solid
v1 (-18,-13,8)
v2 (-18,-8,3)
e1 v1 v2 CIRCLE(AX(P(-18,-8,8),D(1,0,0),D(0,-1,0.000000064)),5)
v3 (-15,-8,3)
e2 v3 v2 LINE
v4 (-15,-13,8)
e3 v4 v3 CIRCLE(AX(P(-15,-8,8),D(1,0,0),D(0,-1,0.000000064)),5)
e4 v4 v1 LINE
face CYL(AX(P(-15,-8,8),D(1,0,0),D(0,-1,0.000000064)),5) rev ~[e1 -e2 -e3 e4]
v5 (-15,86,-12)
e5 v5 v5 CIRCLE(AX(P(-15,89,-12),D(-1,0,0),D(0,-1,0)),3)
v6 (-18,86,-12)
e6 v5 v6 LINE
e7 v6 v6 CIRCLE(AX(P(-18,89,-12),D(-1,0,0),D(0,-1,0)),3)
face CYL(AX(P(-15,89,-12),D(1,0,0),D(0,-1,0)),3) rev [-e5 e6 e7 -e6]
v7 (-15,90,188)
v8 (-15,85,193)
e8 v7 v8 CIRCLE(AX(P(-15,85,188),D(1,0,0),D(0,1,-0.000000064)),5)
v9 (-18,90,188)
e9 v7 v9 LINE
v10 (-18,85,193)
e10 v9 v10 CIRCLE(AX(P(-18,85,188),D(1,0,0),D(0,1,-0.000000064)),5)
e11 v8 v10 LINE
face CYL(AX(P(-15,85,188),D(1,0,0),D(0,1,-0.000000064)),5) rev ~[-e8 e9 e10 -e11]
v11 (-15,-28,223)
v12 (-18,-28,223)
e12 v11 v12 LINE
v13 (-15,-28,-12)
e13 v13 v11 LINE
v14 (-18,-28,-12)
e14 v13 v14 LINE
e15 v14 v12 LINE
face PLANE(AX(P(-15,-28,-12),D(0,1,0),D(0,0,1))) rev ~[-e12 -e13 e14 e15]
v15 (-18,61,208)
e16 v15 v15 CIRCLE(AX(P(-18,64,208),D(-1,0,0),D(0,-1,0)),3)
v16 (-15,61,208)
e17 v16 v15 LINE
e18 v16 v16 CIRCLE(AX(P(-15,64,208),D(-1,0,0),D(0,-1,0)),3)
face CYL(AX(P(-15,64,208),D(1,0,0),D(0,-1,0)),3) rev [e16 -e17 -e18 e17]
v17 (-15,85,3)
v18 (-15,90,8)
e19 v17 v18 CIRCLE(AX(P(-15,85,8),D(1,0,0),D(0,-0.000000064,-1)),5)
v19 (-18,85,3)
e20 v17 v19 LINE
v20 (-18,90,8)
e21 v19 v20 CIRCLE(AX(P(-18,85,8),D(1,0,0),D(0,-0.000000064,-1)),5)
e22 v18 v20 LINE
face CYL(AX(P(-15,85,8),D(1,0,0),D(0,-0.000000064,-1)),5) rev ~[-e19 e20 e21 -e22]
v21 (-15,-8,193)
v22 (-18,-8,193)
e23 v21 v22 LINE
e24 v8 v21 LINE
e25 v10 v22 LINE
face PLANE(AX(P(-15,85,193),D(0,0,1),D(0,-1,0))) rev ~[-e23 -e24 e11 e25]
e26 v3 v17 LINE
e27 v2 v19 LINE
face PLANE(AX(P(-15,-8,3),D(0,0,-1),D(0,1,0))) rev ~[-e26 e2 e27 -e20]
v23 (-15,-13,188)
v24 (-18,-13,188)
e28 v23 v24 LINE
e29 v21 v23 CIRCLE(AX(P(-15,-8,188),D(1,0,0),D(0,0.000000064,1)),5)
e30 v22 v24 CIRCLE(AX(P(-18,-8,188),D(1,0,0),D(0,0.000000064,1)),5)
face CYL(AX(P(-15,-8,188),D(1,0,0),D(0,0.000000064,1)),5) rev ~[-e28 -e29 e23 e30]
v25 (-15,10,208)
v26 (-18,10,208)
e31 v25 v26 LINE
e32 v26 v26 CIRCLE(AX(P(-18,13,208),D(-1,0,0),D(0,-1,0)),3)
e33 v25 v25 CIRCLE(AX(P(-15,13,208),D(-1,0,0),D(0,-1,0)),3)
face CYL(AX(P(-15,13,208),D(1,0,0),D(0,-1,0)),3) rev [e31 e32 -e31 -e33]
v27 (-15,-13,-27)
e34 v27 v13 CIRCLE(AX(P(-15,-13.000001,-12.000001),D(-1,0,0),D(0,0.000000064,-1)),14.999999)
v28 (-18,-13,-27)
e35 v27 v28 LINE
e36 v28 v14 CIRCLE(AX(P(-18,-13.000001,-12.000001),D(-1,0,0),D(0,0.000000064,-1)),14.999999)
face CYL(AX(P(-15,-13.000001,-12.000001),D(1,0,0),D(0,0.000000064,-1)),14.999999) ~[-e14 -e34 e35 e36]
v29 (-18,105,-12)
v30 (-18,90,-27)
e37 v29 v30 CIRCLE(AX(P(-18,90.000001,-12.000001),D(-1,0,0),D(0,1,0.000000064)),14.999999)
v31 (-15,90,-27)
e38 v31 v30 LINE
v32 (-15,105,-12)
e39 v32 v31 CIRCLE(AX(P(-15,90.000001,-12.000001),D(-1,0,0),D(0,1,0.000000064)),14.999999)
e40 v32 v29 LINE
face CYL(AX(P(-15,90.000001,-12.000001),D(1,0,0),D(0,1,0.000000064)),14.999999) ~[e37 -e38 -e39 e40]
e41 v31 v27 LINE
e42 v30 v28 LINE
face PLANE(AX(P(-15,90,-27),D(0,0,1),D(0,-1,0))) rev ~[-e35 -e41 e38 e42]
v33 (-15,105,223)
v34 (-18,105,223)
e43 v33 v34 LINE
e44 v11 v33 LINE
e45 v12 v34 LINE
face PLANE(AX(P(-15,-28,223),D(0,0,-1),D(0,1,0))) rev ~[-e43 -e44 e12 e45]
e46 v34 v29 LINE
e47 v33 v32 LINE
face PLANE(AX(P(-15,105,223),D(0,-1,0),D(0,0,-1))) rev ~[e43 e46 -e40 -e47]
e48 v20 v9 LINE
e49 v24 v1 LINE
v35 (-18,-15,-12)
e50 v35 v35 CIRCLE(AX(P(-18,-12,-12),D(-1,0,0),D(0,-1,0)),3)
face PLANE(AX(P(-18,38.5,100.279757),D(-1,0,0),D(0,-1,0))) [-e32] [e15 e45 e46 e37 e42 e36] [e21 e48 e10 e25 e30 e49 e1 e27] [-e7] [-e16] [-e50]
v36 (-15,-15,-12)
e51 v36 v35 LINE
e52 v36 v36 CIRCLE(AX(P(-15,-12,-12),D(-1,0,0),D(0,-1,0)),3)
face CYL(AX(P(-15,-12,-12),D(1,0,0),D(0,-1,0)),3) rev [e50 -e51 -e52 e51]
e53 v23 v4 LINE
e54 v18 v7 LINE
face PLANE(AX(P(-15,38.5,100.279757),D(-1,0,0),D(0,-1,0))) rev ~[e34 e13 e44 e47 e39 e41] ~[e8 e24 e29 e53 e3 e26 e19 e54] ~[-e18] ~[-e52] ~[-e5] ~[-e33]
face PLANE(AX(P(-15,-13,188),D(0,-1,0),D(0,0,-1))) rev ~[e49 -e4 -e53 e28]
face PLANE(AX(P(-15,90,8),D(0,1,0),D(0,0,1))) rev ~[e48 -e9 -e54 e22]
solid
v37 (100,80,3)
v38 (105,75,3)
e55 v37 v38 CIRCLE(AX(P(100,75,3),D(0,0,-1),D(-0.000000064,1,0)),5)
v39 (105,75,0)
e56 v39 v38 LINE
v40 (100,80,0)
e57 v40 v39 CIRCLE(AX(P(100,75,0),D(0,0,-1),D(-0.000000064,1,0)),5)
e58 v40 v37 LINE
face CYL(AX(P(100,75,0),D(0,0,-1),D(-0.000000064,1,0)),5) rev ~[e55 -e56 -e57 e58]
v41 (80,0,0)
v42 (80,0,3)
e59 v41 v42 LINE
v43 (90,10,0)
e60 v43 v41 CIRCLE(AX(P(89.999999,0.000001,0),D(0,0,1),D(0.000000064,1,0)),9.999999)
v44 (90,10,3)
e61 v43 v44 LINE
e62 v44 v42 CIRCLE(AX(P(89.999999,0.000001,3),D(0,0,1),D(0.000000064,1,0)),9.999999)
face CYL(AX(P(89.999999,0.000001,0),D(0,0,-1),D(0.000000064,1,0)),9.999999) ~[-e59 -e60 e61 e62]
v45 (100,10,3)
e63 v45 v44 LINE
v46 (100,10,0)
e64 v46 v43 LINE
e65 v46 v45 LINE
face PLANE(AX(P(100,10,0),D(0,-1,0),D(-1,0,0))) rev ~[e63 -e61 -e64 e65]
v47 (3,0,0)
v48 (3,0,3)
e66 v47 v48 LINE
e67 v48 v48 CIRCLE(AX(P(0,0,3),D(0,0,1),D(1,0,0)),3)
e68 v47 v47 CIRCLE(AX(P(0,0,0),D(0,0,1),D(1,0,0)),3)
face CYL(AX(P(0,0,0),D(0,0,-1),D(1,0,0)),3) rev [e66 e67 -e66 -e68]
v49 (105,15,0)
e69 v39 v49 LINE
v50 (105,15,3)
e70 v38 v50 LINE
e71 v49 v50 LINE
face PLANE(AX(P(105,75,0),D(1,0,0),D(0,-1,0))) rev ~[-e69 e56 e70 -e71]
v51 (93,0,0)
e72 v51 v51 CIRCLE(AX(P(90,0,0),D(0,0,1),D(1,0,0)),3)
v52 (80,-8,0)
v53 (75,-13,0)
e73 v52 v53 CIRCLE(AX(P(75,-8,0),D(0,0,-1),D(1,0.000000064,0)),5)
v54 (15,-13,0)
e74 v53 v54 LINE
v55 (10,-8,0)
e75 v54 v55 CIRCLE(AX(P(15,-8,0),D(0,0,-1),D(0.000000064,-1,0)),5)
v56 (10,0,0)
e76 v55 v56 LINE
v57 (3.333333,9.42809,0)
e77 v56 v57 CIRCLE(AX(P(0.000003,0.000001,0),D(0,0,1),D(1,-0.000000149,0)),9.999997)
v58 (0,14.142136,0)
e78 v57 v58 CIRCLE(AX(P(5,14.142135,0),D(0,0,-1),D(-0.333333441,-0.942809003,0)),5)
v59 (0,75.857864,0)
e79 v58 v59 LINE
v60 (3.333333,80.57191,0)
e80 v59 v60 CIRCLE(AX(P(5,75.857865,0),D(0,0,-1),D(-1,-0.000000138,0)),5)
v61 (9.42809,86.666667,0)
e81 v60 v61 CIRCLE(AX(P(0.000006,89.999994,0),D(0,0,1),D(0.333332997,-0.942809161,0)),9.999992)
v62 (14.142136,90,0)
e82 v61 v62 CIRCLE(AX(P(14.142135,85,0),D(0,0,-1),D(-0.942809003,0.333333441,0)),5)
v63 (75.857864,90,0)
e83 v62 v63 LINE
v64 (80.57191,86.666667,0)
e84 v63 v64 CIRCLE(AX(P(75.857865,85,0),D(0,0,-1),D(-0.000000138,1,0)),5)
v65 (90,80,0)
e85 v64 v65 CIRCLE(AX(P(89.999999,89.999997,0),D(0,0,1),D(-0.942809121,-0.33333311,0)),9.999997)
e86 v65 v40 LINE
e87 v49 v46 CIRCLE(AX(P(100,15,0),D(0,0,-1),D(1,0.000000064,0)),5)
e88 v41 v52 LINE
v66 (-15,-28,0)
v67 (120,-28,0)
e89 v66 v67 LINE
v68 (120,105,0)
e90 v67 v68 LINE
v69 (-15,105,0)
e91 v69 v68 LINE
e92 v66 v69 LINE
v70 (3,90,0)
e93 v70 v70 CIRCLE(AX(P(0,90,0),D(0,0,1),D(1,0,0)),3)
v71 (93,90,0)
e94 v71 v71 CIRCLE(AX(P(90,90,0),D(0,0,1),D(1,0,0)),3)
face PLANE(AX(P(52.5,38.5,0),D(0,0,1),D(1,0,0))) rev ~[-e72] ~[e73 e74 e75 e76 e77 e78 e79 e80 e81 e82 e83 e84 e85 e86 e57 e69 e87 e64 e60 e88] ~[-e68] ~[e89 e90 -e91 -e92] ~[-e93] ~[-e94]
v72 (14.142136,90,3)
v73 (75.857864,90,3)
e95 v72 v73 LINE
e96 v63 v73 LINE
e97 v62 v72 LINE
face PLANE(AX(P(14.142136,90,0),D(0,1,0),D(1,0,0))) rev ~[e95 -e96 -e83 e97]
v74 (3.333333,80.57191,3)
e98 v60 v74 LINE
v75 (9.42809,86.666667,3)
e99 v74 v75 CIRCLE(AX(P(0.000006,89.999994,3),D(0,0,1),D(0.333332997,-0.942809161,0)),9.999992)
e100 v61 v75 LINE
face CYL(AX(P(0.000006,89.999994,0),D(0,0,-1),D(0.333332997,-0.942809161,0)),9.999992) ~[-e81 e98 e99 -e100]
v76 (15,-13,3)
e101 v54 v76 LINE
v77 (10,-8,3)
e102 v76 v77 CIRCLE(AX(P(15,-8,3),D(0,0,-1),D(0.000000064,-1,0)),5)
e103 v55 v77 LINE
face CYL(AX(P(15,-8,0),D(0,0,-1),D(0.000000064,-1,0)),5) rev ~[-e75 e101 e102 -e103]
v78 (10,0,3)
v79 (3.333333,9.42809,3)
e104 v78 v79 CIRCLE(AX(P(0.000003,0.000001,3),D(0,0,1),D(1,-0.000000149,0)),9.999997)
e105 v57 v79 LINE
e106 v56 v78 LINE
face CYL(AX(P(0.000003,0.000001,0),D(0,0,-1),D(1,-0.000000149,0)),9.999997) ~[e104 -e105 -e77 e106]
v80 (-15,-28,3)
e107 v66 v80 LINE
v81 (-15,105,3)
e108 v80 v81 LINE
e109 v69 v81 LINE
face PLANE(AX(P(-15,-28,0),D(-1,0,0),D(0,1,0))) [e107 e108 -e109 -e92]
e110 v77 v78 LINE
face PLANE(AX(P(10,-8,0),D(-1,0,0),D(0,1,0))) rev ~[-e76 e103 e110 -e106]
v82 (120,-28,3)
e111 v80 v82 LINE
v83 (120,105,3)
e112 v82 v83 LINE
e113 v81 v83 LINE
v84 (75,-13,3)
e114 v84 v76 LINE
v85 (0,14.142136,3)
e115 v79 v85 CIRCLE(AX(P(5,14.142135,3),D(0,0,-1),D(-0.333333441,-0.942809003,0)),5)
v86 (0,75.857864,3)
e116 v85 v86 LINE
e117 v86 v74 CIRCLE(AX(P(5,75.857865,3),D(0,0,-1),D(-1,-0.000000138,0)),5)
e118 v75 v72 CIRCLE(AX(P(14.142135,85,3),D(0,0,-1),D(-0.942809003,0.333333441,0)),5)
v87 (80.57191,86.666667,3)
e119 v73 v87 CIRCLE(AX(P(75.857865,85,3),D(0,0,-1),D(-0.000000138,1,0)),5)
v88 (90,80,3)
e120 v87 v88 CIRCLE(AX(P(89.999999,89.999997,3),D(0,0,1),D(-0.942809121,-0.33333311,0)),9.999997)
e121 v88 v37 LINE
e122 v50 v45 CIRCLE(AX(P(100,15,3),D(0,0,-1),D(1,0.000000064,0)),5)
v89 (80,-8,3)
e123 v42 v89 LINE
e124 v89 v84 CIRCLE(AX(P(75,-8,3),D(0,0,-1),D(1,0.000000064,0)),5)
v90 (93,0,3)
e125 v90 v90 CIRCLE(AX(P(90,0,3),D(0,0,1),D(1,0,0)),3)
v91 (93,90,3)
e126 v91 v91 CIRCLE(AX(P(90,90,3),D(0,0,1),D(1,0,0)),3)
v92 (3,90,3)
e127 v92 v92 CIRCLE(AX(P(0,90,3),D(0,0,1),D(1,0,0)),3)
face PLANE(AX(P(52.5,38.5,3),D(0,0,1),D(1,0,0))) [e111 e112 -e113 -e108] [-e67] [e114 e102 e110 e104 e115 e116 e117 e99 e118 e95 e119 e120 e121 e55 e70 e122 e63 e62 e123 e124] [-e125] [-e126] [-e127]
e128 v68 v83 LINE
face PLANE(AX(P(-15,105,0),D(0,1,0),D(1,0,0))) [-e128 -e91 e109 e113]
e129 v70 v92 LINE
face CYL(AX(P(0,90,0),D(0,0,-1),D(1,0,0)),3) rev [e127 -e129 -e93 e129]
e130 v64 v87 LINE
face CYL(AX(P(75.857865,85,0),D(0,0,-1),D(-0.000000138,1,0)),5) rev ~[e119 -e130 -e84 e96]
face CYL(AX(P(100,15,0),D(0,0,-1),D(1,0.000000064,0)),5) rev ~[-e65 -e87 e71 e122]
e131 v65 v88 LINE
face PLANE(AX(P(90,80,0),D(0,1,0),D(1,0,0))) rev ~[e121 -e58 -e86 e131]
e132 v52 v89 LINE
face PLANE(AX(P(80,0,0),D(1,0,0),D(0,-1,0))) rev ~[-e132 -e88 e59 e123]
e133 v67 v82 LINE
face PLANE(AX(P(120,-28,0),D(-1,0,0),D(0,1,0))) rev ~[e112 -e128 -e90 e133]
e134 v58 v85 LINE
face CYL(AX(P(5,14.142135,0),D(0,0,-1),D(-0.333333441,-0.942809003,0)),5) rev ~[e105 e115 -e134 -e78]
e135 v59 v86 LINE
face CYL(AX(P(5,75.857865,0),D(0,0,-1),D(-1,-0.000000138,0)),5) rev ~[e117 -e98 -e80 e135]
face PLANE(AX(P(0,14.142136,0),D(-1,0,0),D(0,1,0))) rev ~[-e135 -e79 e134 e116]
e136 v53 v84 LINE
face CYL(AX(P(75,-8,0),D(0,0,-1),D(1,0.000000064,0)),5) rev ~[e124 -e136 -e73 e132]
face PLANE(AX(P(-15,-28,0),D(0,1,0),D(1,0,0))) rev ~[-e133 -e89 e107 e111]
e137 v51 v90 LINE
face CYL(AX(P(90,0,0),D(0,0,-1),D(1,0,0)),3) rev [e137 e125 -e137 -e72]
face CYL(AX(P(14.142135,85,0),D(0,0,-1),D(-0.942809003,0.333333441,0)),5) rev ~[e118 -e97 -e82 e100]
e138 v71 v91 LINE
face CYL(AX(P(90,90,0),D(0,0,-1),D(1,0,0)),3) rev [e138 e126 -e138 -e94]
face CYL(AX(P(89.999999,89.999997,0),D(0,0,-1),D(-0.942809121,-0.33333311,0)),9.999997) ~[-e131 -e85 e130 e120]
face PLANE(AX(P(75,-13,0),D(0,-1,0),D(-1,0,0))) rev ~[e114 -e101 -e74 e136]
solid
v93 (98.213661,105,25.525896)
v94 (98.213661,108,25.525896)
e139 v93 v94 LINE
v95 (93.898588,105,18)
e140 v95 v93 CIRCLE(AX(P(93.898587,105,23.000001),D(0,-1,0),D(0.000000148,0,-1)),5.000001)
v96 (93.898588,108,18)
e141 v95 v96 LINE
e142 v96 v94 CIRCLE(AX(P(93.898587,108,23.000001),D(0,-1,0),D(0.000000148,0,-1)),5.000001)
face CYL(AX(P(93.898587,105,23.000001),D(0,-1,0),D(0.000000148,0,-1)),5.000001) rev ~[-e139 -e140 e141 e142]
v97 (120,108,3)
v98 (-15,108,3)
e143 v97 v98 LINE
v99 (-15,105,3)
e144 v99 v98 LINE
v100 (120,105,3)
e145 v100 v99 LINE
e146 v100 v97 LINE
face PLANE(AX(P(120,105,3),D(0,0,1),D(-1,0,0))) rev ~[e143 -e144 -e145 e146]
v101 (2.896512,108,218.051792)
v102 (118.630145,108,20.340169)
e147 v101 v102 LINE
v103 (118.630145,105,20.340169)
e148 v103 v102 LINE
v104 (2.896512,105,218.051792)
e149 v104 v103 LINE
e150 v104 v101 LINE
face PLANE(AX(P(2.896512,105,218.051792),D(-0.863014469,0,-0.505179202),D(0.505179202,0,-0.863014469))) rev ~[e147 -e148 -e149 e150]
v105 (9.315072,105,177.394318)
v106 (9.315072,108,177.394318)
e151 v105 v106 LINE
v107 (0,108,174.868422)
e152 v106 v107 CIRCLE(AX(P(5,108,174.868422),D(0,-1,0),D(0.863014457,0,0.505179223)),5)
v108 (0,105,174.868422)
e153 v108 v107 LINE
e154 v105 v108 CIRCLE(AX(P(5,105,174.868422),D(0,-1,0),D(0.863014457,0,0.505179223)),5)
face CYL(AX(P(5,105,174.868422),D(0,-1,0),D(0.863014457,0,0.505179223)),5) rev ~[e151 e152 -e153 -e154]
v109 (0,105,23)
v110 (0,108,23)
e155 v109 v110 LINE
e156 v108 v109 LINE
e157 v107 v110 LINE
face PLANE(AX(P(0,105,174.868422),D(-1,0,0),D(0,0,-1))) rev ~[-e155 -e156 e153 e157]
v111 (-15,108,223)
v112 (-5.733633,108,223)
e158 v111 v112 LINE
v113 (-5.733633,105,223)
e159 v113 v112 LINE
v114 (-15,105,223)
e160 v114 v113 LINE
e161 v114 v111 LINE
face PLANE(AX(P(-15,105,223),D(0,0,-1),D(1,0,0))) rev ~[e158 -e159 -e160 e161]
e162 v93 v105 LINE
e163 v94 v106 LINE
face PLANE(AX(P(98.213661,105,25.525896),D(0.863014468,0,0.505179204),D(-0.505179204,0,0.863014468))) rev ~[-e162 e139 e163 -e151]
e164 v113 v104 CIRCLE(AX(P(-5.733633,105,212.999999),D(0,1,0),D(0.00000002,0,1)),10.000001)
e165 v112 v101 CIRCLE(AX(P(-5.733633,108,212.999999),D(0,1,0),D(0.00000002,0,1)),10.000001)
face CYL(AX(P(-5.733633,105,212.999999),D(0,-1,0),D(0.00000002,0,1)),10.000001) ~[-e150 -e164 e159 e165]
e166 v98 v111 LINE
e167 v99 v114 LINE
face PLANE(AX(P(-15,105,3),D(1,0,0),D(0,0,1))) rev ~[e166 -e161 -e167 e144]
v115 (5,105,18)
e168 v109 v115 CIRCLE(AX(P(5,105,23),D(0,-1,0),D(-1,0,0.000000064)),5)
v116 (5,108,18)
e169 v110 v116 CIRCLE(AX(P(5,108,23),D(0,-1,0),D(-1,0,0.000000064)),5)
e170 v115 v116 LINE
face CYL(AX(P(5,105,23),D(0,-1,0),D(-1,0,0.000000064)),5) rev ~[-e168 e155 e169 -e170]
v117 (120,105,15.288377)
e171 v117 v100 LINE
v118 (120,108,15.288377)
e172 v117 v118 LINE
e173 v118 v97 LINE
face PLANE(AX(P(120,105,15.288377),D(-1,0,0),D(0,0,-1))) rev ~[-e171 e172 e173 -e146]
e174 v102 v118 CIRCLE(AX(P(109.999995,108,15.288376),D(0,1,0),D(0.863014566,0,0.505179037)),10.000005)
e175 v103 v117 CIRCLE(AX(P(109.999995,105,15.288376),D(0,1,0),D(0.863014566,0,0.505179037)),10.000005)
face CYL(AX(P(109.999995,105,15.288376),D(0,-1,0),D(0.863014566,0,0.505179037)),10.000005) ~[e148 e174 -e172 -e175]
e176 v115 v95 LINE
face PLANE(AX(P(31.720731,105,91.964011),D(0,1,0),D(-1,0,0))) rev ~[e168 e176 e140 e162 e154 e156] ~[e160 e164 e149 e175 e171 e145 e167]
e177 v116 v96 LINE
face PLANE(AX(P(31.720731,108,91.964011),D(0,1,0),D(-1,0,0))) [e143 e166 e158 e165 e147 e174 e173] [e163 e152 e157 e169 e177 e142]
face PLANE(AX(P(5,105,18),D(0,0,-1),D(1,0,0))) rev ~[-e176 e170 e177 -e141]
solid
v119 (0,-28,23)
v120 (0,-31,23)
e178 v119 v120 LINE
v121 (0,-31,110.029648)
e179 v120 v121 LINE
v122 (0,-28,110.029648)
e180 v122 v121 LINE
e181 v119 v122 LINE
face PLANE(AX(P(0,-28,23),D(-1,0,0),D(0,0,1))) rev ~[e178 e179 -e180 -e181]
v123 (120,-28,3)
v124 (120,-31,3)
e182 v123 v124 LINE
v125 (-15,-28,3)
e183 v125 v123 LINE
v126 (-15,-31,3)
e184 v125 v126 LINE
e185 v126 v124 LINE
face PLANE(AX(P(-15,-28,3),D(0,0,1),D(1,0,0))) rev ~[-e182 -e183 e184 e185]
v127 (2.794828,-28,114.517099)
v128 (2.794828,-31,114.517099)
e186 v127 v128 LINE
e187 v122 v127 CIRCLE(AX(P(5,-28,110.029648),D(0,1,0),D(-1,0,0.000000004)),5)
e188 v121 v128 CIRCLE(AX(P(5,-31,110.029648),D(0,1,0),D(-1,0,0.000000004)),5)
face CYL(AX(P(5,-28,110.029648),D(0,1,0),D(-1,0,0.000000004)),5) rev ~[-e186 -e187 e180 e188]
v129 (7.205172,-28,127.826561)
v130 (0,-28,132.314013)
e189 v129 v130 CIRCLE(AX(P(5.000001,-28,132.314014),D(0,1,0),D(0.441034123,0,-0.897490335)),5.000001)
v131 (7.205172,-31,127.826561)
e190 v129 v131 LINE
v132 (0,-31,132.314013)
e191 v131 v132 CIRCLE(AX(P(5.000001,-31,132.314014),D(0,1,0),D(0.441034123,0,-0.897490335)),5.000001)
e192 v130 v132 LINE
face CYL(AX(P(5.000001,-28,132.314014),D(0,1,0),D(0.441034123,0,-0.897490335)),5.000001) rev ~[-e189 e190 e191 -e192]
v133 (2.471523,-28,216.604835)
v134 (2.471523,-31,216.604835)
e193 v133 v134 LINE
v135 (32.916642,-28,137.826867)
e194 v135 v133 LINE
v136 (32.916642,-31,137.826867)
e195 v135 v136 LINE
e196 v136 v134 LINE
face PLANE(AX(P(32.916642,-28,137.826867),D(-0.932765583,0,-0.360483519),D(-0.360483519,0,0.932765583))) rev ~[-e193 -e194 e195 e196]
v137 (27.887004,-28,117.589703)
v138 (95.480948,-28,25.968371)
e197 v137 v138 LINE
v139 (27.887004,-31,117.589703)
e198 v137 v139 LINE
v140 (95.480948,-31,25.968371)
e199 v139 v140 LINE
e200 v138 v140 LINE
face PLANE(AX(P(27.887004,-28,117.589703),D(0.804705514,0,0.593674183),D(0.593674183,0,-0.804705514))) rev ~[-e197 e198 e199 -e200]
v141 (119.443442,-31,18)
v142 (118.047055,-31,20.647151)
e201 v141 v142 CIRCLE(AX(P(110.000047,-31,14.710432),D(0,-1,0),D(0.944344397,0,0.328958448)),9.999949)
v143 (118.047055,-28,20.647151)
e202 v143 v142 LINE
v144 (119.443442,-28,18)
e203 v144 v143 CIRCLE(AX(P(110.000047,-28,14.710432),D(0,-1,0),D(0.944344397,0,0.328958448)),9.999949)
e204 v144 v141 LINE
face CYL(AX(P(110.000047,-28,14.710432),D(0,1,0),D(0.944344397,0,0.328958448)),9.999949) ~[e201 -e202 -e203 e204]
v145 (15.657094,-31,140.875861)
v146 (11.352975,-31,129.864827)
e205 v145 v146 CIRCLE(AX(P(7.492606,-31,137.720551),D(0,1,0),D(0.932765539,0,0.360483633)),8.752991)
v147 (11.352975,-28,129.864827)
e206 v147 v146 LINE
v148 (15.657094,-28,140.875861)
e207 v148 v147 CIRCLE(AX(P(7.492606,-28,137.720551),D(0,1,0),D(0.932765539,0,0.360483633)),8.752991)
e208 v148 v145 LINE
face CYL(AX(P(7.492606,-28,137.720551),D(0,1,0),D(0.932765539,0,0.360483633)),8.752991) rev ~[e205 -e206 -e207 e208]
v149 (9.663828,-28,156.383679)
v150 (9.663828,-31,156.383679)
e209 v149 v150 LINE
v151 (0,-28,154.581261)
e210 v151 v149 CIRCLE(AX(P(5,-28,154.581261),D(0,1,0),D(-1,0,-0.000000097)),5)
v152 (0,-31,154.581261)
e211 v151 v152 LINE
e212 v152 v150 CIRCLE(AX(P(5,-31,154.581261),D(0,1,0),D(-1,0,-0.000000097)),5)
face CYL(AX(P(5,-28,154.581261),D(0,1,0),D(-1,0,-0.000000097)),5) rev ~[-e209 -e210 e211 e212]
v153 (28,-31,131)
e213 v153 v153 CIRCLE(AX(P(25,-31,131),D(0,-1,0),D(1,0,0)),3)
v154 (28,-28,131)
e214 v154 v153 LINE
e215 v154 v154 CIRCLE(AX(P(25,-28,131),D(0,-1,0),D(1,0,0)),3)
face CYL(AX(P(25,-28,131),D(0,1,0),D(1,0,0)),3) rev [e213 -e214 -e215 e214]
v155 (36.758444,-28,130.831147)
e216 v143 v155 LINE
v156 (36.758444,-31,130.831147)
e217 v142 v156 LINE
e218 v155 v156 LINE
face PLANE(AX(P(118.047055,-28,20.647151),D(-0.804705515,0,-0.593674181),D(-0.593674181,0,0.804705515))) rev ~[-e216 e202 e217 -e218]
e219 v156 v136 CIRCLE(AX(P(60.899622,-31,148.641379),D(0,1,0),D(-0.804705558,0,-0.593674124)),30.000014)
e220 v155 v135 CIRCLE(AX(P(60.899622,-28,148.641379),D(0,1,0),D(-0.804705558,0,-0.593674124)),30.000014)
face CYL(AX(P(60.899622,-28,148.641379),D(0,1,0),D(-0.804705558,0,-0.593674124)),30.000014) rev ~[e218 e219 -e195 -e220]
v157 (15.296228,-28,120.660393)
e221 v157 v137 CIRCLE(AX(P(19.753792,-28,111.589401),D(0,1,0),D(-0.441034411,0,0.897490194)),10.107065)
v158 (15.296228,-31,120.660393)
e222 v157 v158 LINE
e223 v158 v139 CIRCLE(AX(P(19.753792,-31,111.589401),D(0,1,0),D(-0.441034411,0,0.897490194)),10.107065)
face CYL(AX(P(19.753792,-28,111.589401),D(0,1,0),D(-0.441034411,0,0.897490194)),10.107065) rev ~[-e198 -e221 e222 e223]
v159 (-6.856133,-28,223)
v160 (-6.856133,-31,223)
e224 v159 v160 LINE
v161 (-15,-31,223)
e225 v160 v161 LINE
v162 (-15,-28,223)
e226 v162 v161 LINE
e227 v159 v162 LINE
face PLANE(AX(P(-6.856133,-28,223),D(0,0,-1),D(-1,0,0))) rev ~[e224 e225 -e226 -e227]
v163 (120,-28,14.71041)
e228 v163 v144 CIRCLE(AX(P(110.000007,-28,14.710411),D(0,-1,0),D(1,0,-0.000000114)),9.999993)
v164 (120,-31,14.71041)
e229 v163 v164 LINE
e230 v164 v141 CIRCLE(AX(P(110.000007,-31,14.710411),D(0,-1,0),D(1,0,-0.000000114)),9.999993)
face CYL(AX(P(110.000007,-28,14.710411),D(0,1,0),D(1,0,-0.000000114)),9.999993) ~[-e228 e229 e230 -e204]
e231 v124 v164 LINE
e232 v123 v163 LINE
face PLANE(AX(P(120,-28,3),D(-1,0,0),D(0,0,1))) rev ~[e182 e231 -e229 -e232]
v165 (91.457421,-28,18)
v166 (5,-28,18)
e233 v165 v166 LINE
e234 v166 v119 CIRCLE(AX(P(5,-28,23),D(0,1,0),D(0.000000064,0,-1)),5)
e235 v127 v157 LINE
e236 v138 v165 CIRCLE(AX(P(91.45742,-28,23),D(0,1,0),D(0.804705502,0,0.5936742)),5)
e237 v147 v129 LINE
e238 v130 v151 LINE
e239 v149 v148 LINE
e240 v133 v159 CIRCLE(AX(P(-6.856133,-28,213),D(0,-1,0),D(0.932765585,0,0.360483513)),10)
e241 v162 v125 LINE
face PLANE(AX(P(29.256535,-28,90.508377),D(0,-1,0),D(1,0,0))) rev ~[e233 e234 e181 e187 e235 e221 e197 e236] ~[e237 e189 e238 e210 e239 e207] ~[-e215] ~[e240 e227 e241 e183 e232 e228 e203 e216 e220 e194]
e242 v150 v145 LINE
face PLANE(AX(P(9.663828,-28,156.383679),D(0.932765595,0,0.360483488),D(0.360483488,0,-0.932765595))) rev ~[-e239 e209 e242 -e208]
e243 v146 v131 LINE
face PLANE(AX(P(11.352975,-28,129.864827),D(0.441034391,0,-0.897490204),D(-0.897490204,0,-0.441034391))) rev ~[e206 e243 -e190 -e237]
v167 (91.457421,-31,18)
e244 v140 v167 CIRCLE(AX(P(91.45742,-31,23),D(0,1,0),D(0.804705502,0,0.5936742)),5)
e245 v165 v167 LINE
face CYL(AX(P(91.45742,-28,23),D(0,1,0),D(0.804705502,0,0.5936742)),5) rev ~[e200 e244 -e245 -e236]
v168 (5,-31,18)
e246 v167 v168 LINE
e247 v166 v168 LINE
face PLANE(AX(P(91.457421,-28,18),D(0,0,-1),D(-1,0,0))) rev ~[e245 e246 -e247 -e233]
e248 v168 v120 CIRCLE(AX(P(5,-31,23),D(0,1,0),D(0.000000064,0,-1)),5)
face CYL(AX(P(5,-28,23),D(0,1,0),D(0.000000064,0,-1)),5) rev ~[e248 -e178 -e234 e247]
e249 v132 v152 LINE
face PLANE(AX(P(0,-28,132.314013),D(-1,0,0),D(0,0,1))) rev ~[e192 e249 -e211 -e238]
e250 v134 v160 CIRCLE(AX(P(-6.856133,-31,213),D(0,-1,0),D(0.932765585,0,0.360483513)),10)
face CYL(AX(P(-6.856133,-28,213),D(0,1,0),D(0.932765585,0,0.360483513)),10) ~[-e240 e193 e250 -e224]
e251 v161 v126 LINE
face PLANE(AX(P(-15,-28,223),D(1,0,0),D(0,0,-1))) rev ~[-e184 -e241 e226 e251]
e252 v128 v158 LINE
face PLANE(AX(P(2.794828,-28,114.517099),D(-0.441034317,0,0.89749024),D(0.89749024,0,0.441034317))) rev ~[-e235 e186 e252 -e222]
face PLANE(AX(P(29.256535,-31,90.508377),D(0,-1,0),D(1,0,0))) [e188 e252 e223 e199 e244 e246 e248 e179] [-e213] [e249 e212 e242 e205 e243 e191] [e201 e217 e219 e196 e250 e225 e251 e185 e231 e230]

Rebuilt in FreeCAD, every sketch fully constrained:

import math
import FreeCAD as App
import Part
import Sketcher

V = App.Vector
Q = App.Units.Quantity


def add_polygon(sketch, points):
    """Adds a closed chain of lines whose ends are joined by coincident constraints."""
    first, n = sketch.GeometryCount, len(points)
    for a, b in zip(points, points[1:] + points[:1]):
        sketch.addGeometry(Part.LineSegment(App.Vector(*a, 0), App.Vector(*b, 0)), False)
    for i in range(n):
        sketch.addConstraint(Sketcher.Constraint("Coincident", first + i, 2, first + (i + 1) % n, 1))

doc = App.newDocument("Part")
body = doc.addObject("PartDesign::Body", "Body")

sketch1 = body.newObject("Sketcher::SketchObject", "Sketch")
sketch1.AttachmentSupport = (doc.getObject("XY_Plane"), [""])
sketch1.MapMode = "FlatFace"
add_polygon(sketch1, [(-15, 105), (-15, -28), (120, -28), (120, 105)])
sketch1.addGeometry(Part.Circle(V(0, 0, 0), V(0, 0, 1), 3), False)
sketch1.addGeometry(Part.Circle(V(90, 0, 0), V(0, 0, 1), 3), False)
sketch1.addGeometry(Part.LineSegment(V(0, 14.142136, 0), V(0, 75.857864, 0)), False)
sketch1.addGeometry(Part.ArcOfCircle(Part.Circle(V(5, 75.857865, 0), V(0, 0, 1), 5), math.radians(109.471227), math.radians(180.000008)), False)
sketch1.addGeometry(Part.ArcOfCircle(Part.Circle(V(0.000006, 89.999994, 0), V(0, 0, 1), 9.999992), math.radians(-70.5288), math.radians(-19.4712)), False)
sketch1.addGeometry(Part.ArcOfCircle(Part.Circle(V(14.142135, 85, 0), V(0, 0, 1), 5), math.radians(89.999992), math.radians(160.528773)), False)
sketch1.addGeometry(Part.LineSegment(V(14.142136, 90, 0), V(75.857864, 90, 0)), False)
sketch1.addGeometry(Part.ArcOfCircle(Part.Circle(V(75.857865, 85, 0), V(0, 0, 1), 5), math.radians(19.471227), math.radians(90.000008)), False)
sketch1.addGeometry(Part.ArcOfCircle(Part.Circle(V(89.999999, 89.999997, 0), V(0, 0, 1), 9.999997), math.radians(-160.528793), math.radians(-89.999991)), False)
sketch1.addGeometry(Part.LineSegment(V(90, 80, 0), V(100, 80, 0)), False)
sketch1.addGeometry(Part.ArcOfCircle(Part.Circle(V(100, 75, 0), V(0, 0, 1), 5), math.radians(-0.000004), math.radians(90.000004)), False)
sketch1.addGeometry(Part.LineSegment(V(105, 75, 0), V(105, 15, 0)), False)
sketch1.addGeometry(Part.ArcOfCircle(Part.Circle(V(100, 15, 0), V(0, 0, 1), 5), math.radians(-90.000004), math.radians(0.000004)), False)
sketch1.addGeometry(Part.LineSegment(V(100, 10, 0), V(90, 10, 0)), False)
sketch1.addGeometry(Part.ArcOfCircle(Part.Circle(V(89.999999, 0.000001, 0), V(0, 0, 1), 9.999999), math.radians(89.999996), math.radians(180.000004)), False)
sketch1.addGeometry(Part.LineSegment(V(80, 0, 0), V(80, -8, 0)), False)
sketch1.addGeometry(Part.ArcOfCircle(Part.Circle(V(75, -8, 0), V(0, 0, 1), 5), math.radians(-90.000004), math.radians(0.000004)), False)
sketch1.addGeometry(Part.LineSegment(V(75, -13, 0), V(15, -13, 0)), False)
sketch1.addGeometry(Part.ArcOfCircle(Part.Circle(V(15, -8, 0), V(0, 0, 1), 5), math.radians(179.999996), math.radians(270.000004)), False)
sketch1.addGeometry(Part.LineSegment(V(10, -8, 0), V(10, 0, 0)), False)
sketch1.addGeometry(Part.ArcOfCircle(Part.Circle(V(0.000003, 0.000001, 0), V(0, 0, 1), 9.999997), math.radians(-0.000009), math.radians(70.528793)), False)
sketch1.addGeometry(Part.ArcOfCircle(Part.Circle(V(5, 14.142135, 0), V(0, 0, 1), 5), math.radians(179.999992), math.radians(250.528773)), False)
sketch1.addGeometry(Part.Circle(V(0, 90, 0), V(0, 0, 1), 3), False)
sketch1.addGeometry(Part.Circle(V(90, 90, 0), V(0, 0, 1), 3), False)
sketch1.addConstraint(Sketcher.Constraint("Tangent", 6, 2, 7, 2))
sketch1.addConstraint(Sketcher.Constraint("Tangent", 7, 1, 8, 1))
sketch1.addConstraint(Sketcher.Constraint("Tangent", 8, 2, 9, 2))
sketch1.addConstraint(Sketcher.Constraint("Tangent", 9, 1, 10, 1))
sketch1.addConstraint(Sketcher.Constraint("Tangent", 10, 2, 11, 2))
sketch1.addConstraint(Sketcher.Constraint("Tangent", 11, 1, 12, 1))
sketch1.addConstraint(Sketcher.Constraint("Tangent", 12, 2, 13, 1))
sketch1.addConstraint(Sketcher.Constraint("Tangent", 13, 2, 14, 2))
sketch1.addConstraint(Sketcher.Constraint("Tangent", 14, 1, 15, 1))
sketch1.addConstraint(Sketcher.Constraint("Tangent", 15, 2, 16, 2))
sketch1.addConstraint(Sketcher.Constraint("Tangent", 16, 1, 17, 1))
sketch1.addConstraint(Sketcher.Constraint("Tangent", 17, 2, 18, 1))
sketch1.addConstraint(Sketcher.Constraint("Tangent", 18, 2, 19, 1))
sketch1.addConstraint(Sketcher.Constraint("Tangent", 19, 2, 20, 2))
sketch1.addConstraint(Sketcher.Constraint("Tangent", 20, 1, 21, 1))
sketch1.addConstraint(Sketcher.Constraint("Tangent", 21, 2, 22, 2))
sketch1.addConstraint(Sketcher.Constraint("Tangent", 22, 1, 23, 1))
sketch1.addConstraint(Sketcher.Constraint("Tangent", 23, 2, 24, 1))
sketch1.addConstraint(Sketcher.Constraint("Tangent", 24, 2, 25, 2))
sketch1.addConstraint(Sketcher.Constraint("Tangent", 25, 1, 6, 1))
sketch1.addConstraint(Sketcher.Constraint("Vertical", 0))
sketch1.addConstraint(Sketcher.Constraint("Horizontal", 1))
sketch1.addConstraint(Sketcher.Constraint("Vertical", 2))
sketch1.addConstraint(Sketcher.Constraint("Horizontal", 3))
sketch1.addConstraint(Sketcher.Constraint("Vertical", 6))
sketch1.addConstraint(Sketcher.Constraint("Horizontal", 10))
sketch1.addConstraint(Sketcher.Constraint("Horizontal", 13))
sketch1.addConstraint(Sketcher.Constraint("Vertical", 15))
sketch1.addConstraint(Sketcher.Constraint("Horizontal", 17))
sketch1.addConstraint(Sketcher.Constraint("Vertical", 19))
sketch1.addConstraint(Sketcher.Constraint("Horizontal", 21))
sketch1.addConstraint(Sketcher.Constraint("Vertical", 23))
sketch1.addConstraint(Sketcher.Constraint("Coincident", 4, 3, -1, 1))
sketch1.addConstraint(Sketcher.Constraint("Coincident", 24, 3, -1, 1))
sketch1.addConstraint(Sketcher.Constraint("Coincident", 18, 3, 5, 3))
sketch1.addConstraint(Sketcher.Constraint("Coincident", 26, 3, 8, 3))
sketch1.addConstraint(Sketcher.Constraint("Coincident", 27, 3, 12, 3))
sketch1.addConstraint(Sketcher.Constraint("Equal", 4, 5))
sketch1.addConstraint(Sketcher.Constraint("Equal", 7, 9))
sketch1.addConstraint(Sketcher.Constraint("Equal", 9, 11))
sketch1.addConstraint(Sketcher.Constraint("Equal", 11, 14))
sketch1.addConstraint(Sketcher.Constraint("Equal", 14, 16))
sketch1.addConstraint(Sketcher.Constraint("Equal", 16, 20))
sketch1.addConstraint(Sketcher.Constraint("Equal", 20, 22))
sketch1.addConstraint(Sketcher.Constraint("Equal", 12, 24))
sketch1.addConstraint(Sketcher.Constraint("Equal", 22, 25))
sketch1.addConstraint(Sketcher.Constraint("Equal", 5, 26))
sketch1.addConstraint(Sketcher.Constraint("Equal", 26, 27))
sketch1.addConstraint(Sketcher.Constraint("PointOnObject", 5, 3, -1))
sketch1.addConstraint(Sketcher.Constraint("PointOnObject", 26, 3, -2))
sketch1.addConstraint(Sketcher.Constraint("PointOnObject", 6, 2, -2))
sketch1.addConstraint(Sketcher.Constraint("Horizontal", 26, 3, 27, 3))
sketch1.addConstraint(Sketcher.Constraint("Horizontal", 27, 3, 9, 1))
sketch1.addConstraint(Sketcher.Constraint("Horizontal", 8, 2, 11, 1))
sketch1.addConstraint(Sketcher.Constraint("Vertical", 5, 3, 12, 3))
sketch1.addConstraint(Sketcher.Constraint("Equal", 10, 6))
sketch1.addConstraint(Sketcher.Constraint("Diameter", 4, Q("6 mm")))
sketch1.addConstraint(Sketcher.Constraint("Radius", 7, Q("5 mm")))
sketch1.addConstraint(Sketcher.Constraint("Radius", 18, Q("9.999999 mm")))
sketch1.addConstraint(Sketcher.Constraint("DistanceX", 1, 1, 1, 2, Q("135 mm")))
sketch1.addConstraint(Sketcher.Constraint("DistanceX", 13, 1, 13, 2, Q("10 mm")))
sketch1.addConstraint(Sketcher.Constraint("DistanceX", 21, 2, 21, 1, Q("60 mm")))
sketch1.addConstraint(Sketcher.Constraint("DistanceY", 0, 2, 0, 1, Q("133 mm")))
sketch1.addConstraint(Sketcher.Constraint("DistanceY", 19, 2, 19, 1, Q("8 mm")))
sketch1.addConstraint(Sketcher.Constraint("DistanceX", -1, 1, 5, 3, Q("90 mm")))
sketch1.addConstraint(Sketcher.Constraint("DistanceX", 0, 2, -1, 1, Q("15 mm")))
sketch1.addConstraint(Sketcher.Constraint("DistanceY", 0, 2, -1, 1, Q("28 mm")))
pad1 = body.newObject("PartDesign::Pad", "Pad")
pad1.Profile = sketch1
pad1.Length = 3
body2 = doc.addObject("PartDesign::Body", "Body001")

sketch2 = body2.newObject("Sketcher::SketchObject", "Sketch001")
sketch2.AttachmentSupport = (doc.getObject("YZ_Plane001"), [""])
sketch2.MapMode = "FlatFace"
sketch2.AttachmentOffset = App.Placement(V(0, 0, -15), App.Rotation())
sketch2.addGeometry(Part.LineSegment(V(-28, 223, 0), V(105, 223, 0)), False)
sketch2.addGeometry(Part.LineSegment(V(105, 223, 0), V(105, -12, 0)), False)
sketch2.addGeometry(Part.ArcOfCircle(Part.Circle(V(90.000001, -12.000001, 0), V(0, 0, 1), 14.999999), math.radians(-90.000004), math.radians(0.000004)), False)
sketch2.addGeometry(Part.LineSegment(V(90, -27, 0), V(-13, -27, 0)), False)
sketch2.addGeometry(Part.ArcOfCircle(Part.Circle(V(-13.000001, -12.000001, 0), V(0, 0, 1), 14.999999), math.radians(179.999996), math.radians(270.000004)), False)
sketch2.addGeometry(Part.LineSegment(V(-28, -12, 0), V(-28, 223, 0)), False)
sketch2.addGeometry(Part.Circle(V(89, -12, 0), V(0, 0, 1), 3), False)
sketch2.addGeometry(Part.Circle(V(-12, -12, 0), V(0, 0, 1), 3), False)
sketch2.addGeometry(Part.Circle(V(64, 208, 0), V(0, 0, 1), 3), False)
sketch2.addGeometry(Part.ArcOfCircle(Part.Circle(V(-8, 8, 0), V(0, 0, 1), 5), math.radians(179.999996), math.radians(270.000004)), False)
sketch2.addGeometry(Part.LineSegment(V(-8, 3, 0), V(85, 3, 0)), False)
sketch2.addGeometry(Part.ArcOfCircle(Part.Circle(V(85, 8, 0), V(0, 0, 1), 5), math.radians(-90.000004), math.radians(0.000004)), False)
sketch2.addGeometry(Part.LineSegment(V(90, 8, 0), V(90, 188, 0)), False)
sketch2.addGeometry(Part.ArcOfCircle(Part.Circle(V(85, 188, 0), V(0, 0, 1), 5), math.radians(-0.000004), math.radians(90.000004)), False)
sketch2.addGeometry(Part.LineSegment(V(85, 193, 0), V(-8, 193, 0)), False)
sketch2.addGeometry(Part.ArcOfCircle(Part.Circle(V(-8, 188, 0), V(0, 0, 1), 5), math.radians(89.999996), math.radians(180.000004)), False)
sketch2.addGeometry(Part.LineSegment(V(-13, 188, 0), V(-13, 8, 0)), False)
sketch2.addGeometry(Part.Circle(V(13, 208, 0), V(0, 0, 1), 3), False)
sketch2.addConstraint(Sketcher.Constraint("Coincident", 0, 2, 1, 1))
sketch2.addConstraint(Sketcher.Constraint("Tangent", 1, 2, 2, 2))
sketch2.addConstraint(Sketcher.Constraint("Tangent", 2, 1, 3, 1))
sketch2.addConstraint(Sketcher.Constraint("Tangent", 3, 2, 4, 2))
sketch2.addConstraint(Sketcher.Constraint("Tangent", 4, 1, 5, 1))
sketch2.addConstraint(Sketcher.Constraint("Coincident", 5, 2, 0, 1))
sketch2.addConstraint(Sketcher.Constraint("Tangent", 9, 2, 10, 1))
sketch2.addConstraint(Sketcher.Constraint("Tangent", 10, 2, 11, 1))
sketch2.addConstraint(Sketcher.Constraint("Tangent", 11, 2, 12, 1))
sketch2.addConstraint(Sketcher.Constraint("Tangent", 12, 2, 13, 1))
sketch2.addConstraint(Sketcher.Constraint("Tangent", 13, 2, 14, 1))
sketch2.addConstraint(Sketcher.Constraint("Tangent", 14, 2, 15, 1))
sketch2.addConstraint(Sketcher.Constraint("Tangent", 15, 2, 16, 1))
sketch2.addConstraint(Sketcher.Constraint("Tangent", 16, 2, 9, 1))
sketch2.addConstraint(Sketcher.Constraint("Horizontal", 0))
sketch2.addConstraint(Sketcher.Constraint("Vertical", 1))
sketch2.addConstraint(Sketcher.Constraint("Horizontal", 3))
sketch2.addConstraint(Sketcher.Constraint("Vertical", 5))
sketch2.addConstraint(Sketcher.Constraint("Horizontal", 10))
sketch2.addConstraint(Sketcher.Constraint("Vertical", 12))
sketch2.addConstraint(Sketcher.Constraint("Horizontal", 14))
sketch2.addConstraint(Sketcher.Constraint("Vertical", 16))
sketch2.addConstraint(Sketcher.Constraint("Equal", 2, 4))
sketch2.addConstraint(Sketcher.Constraint("Equal", 6, 7))
sketch2.addConstraint(Sketcher.Constraint("Equal", 7, 8))
sketch2.addConstraint(Sketcher.Constraint("Equal", 9, 11))
sketch2.addConstraint(Sketcher.Constraint("Equal", 11, 13))
sketch2.addConstraint(Sketcher.Constraint("Equal", 13, 15))
sketch2.addConstraint(Sketcher.Constraint("Equal", 8, 17))
sketch2.addConstraint(Sketcher.Constraint("Horizontal", 4, 3, 6, 3))
sketch2.addConstraint(Sketcher.Constraint("Horizontal", 6, 3, 7, 3))
sketch2.addConstraint(Sketcher.Constraint("Horizontal", 8, 3, 17, 3))
sketch2.addConstraint(Sketcher.Constraint("Vertical", 2, 1, 11, 2))
sketch2.addConstraint(Sketcher.Constraint("Vertical", 3, 2, 15, 2))
sketch2.addConstraint(Sketcher.Constraint("Diameter", 6, Q("6 mm")))
sketch2.addConstraint(Sketcher.Constraint("Radius", 2, Q("14.999999 mm")))
sketch2.addConstraint(Sketcher.Constraint("Radius", 9, Q("5 mm")))
sketch2.addConstraint(Sketcher.Constraint("DistanceX", 0, 1, 0, 2, Q("133 mm")))
sketch2.addConstraint(Sketcher.Constraint("DistanceY", 1, 2, 1, 1, Q("235 mm")))
sketch2.addConstraint(Sketcher.Constraint("DistanceY", 12, 1, 12, 2, Q("180 mm")))
sketch2.addConstraint(Sketcher.Constraint("DistanceX", -1, 1, 2, 3, Q("90.000001 mm")))
sketch2.addConstraint(Sketcher.Constraint("DistanceY", 2, 3, -1, 1, Q("12.000001 mm")))
sketch2.addConstraint(Sketcher.Constraint("DistanceX", -1, 1, 6, 3, Q("89 mm")))
sketch2.addConstraint(Sketcher.Constraint("DistanceX", 7, 3, -1, 1, Q("12 mm")))
sketch2.addConstraint(Sketcher.Constraint("DistanceX", -1, 1, 8, 3, Q("64 mm")))
sketch2.addConstraint(Sketcher.Constraint("DistanceY", -1, 1, 8, 3, Q("208 mm")))
sketch2.addConstraint(Sketcher.Constraint("DistanceY", -1, 1, 9, 3, Q("8 mm")))
sketch2.addConstraint(Sketcher.Constraint("DistanceX", -1, 1, 17, 3, Q("13 mm")))
pad2 = body2.newObject("PartDesign::Pad", "Pad001")
pad2.Profile = sketch2
pad2.Length = 3
pad2.Reversed = True
body3 = doc.addObject("PartDesign::Body", "Body002")

sketch3 = body3.newObject("Sketcher::SketchObject", "Sketch002")
sketch3.AttachmentSupport = (doc.getObject("XZ_Plane002"), [""])
sketch3.MapMode = "FlatFace"
sketch3.AttachmentOffset = App.Placement(V(0, 0, -105), App.Rotation())
sketch3.addGeometry(Part.LineSegment(V(120, 3, 0), V(-15, 3, 0)), False)
sketch3.addGeometry(Part.LineSegment(V(-15, 3, 0), V(-15, 223, 0)), False)
sketch3.addGeometry(Part.LineSegment(V(-15, 223, 0), V(-5.733633, 223, 0)), False)
sketch3.addGeometry(Part.ArcOfCircle(Part.Circle(V(-5.733633, 212.999999, 0), V(0, 0, 1), 10.000001), math.radians(30.343252), math.radians(89.999999)), False)
sketch3.addGeometry(Part.LineSegment(V(2.896512, 218.051792, 0), V(118.630145, 20.340169, 0)), False)
sketch3.addGeometry(Part.ArcOfCircle(Part.Circle(V(109.999995, 15.288376, 0), V(0, 0, 1), 10.000005), math.radians(0.000005), math.radians(30.343238)), False)
sketch3.addGeometry(Part.LineSegment(V(120, 15.288377, 0), V(120, 3, 0)), False)
sketch3.addGeometry(Part.ArcOfCircle(Part.Circle(V(5, 23, 0), V(0, 0, 1), 5), math.radians(179.999996), math.radians(270.000004)), False)
sketch3.addGeometry(Part.LineSegment(V(5, 18, 0), V(93.898588, 18, 0)), False)
sketch3.addGeometry(Part.ArcOfCircle(Part.Circle(V(93.898587, 23.000001, 0), V(0, 0, 1), 5.000001), math.radians(-89.999992), math.radians(30.343233)), False)
sketch3.addGeometry(Part.LineSegment(V(98.213661, 25.525896, 0), V(9.315072, 177.394318, 0)), False)
sketch3.addGeometry(Part.ArcOfCircle(Part.Circle(V(5, 174.868422, 0), V(0, 0, 1), 5), math.radians(30.34325), math.radians(180)), False)
sketch3.addGeometry(Part.LineSegment(V(0, 174.868422, 0), V(0, 23, 0)), False)
sketch3.addConstraint(Sketcher.Constraint("Coincident", 0, 2, 1, 1))
sketch3.addConstraint(Sketcher.Constraint("Coincident", 1, 2, 2, 1))
sketch3.addConstraint(Sketcher.Constraint("Tangent", 2, 2, 3, 2))
sketch3.addConstraint(Sketcher.Constraint("Tangent", 3, 1, 4, 1))
sketch3.addConstraint(Sketcher.Constraint("Tangent", 4, 2, 5, 2))
sketch3.addConstraint(Sketcher.Constraint("Tangent", 5, 1, 6, 1))
sketch3.addConstraint(Sketcher.Constraint("Coincident", 6, 2, 0, 1))
sketch3.addConstraint(Sketcher.Constraint("Tangent", 7, 2, 8, 1))
sketch3.addConstraint(Sketcher.Constraint("Tangent", 8, 2, 9, 1))
sketch3.addConstraint(Sketcher.Constraint("Tangent", 9, 2, 10, 1))
sketch3.addConstraint(Sketcher.Constraint("Tangent", 10, 2, 11, 1))
sketch3.addConstraint(Sketcher.Constraint("Tangent", 11, 2, 12, 1))
sketch3.addConstraint(Sketcher.Constraint("Tangent", 12, 2, 7, 1))
sketch3.addConstraint(Sketcher.Constraint("Horizontal", 0))
sketch3.addConstraint(Sketcher.Constraint("Vertical", 1))
sketch3.addConstraint(Sketcher.Constraint("Horizontal", 2))
sketch3.addConstraint(Sketcher.Constraint("Vertical", 6))
sketch3.addConstraint(Sketcher.Constraint("Horizontal", 8))
sketch3.addConstraint(Sketcher.Constraint("Vertical", 12))
sketch3.addConstraint(Sketcher.Constraint("Equal", 7, 9))
sketch3.addConstraint(Sketcher.Constraint("Equal", 9, 11))
sketch3.addConstraint(Sketcher.Constraint("PointOnObject", 11, 2, -2))
sketch3.addConstraint(Sketcher.Constraint("Parallel", 4, 10))
sketch3.addConstraint(Sketcher.Constraint("Radius", 3, Q("10.000001 mm")))
sketch3.addConstraint(Sketcher.Constraint("Radius", 7, Q("5 mm")))
sketch3.addConstraint(Sketcher.Constraint("DistanceX", 0, 2, 0, 1, Q("135 mm")))
sketch3.addConstraint(Sketcher.Constraint("DistanceY", 1, 1, 1, 2, Q("220 mm")))
sketch3.addConstraint(Sketcher.Constraint("DistanceY", -1, 1, 3, 3, Q("212.999999 mm")))
sketch3.addConstraint(Sketcher.Constraint("DistanceY", -1, 1, 7, 3, Q("23 mm")))
sketch3.addConstraint(Sketcher.Constraint("DistanceX", 0, 2, -1, 1, Q("15 mm")))
sketch3.addConstraint(Sketcher.Constraint("Radius", 5, Q("10.000005 mm")))
sketch3.addConstraint(Sketcher.Constraint("DistanceX", 8, 1, 8, 2, Q("88.898588 mm")))
sketch3.addConstraint(Sketcher.Constraint("DistanceX", 2, 1, 2, 2, Q("9.266367 mm")))
sketch3.addConstraint(Sketcher.Constraint("DistanceY", 6, 2, 6, 1, Q("12.288377 mm")))
pad3 = body3.newObject("PartDesign::Pad", "Pad002")
pad3.Profile = sketch3
pad3.Length = 3
pad3.Reversed = True
body4 = doc.addObject("PartDesign::Body", "Body003")

sketch4 = body4.newObject("Sketcher::SketchObject", "Sketch003")
sketch4.AttachmentSupport = (doc.getObject("XZ_Plane003"), [""])
sketch4.MapMode = "FlatFace"
sketch4.AttachmentOffset = App.Placement(V(0, 0, 28), App.Rotation())
sketch4.addGeometry(Part.LineSegment(V(-15, 223, 0), V(-15, 3, 0)), False)
sketch4.addGeometry(Part.LineSegment(V(-15, 3, 0), V(120, 3, 0)), False)
sketch4.addGeometry(Part.LineSegment(V(120, 3, 0), V(120, 14.71041, 0)), False)
sketch4.addGeometry(Part.ArcOfCircle(Part.Circle(V(110.000007, 14.710411, 0), V(0, 0, 1), 9.999993), math.radians(-0.000007), math.radians(19.205611)), False)
sketch4.addGeometry(Part.ArcOfCircle(Part.Circle(V(110.000047, 14.710432, 0), V(0, 0, 1), 9.999949), math.radians(19.20557), math.radians(36.418227)), False)
sketch4.addGeometry(Part.LineSegment(V(118.047055, 20.647151, 0), V(36.758444, 130.831147, 0)), False)
sketch4.addGeometry(Part.ArcOfCircle(Part.Circle(V(60.899622, 148.641379, 0), V(0, 0, 1), 30.000014), math.radians(-158.870104), math.radians(-143.581829)), False)
sketch4.addGeometry(Part.LineSegment(V(32.916642, 137.826867, 0), V(2.471523, 216.604835, 0)), False)
sketch4.addGeometry(Part.ArcOfCircle(Part.Circle(V(-6.856133, 213, 0), V(0, 0, 1), 10), math.radians(21.129893), math.radians(90)), False)
sketch4.addGeometry(Part.LineSegment(V(-6.856133, 223, 0), V(-15, 223, 0)), False)
sketch4.addGeometry(Part.LineSegment(V(0, 23, 0), V(0, 110.029648, 0)), False)
sketch4.addGeometry(Part.ArcOfCircle(Part.Circle(V(5, 110.029648, 0), V(0, 0, 1), 5), math.radians(116.169899), math.radians(180)), False)
sketch4.addGeometry(Part.LineSegment(V(2.794828, 114.517099, 0), V(15.296228, 120.660393, 0)), False)
sketch4.addGeometry(Part.ArcOfCircle(Part.Circle(V(19.753792, 111.589401, 0), V(0, 0, 1), 10.107065), math.radians(36.418163), math.radians(116.169899)), False)
sketch4.addGeometry(Part.LineSegment(V(27.887004, 117.589703, 0), V(95.480948, 25.968371, 0)), False)
sketch4.addGeometry(Part.ArcOfCircle(Part.Circle(V(91.45742, 23, 0), V(0, 0, 1), 5), math.radians(-89.999994), math.radians(36.418176)), False)
sketch4.addGeometry(Part.LineSegment(V(91.457421, 18, 0), V(5, 18, 0)), False)
sketch4.addGeometry(Part.ArcOfCircle(Part.Circle(V(5, 23, 0), V(0, 0, 1), 5), math.radians(179.999996), math.radians(270.000004)), False)
sketch4.addGeometry(Part.ArcOfCircle(Part.Circle(V(7.492606, 137.720551, 0), V(0, 0, 1), 8.752991), math.radians(-63.830107), math.radians(21.129901)), False)
sketch4.addGeometry(Part.LineSegment(V(11.352975, 129.864827, 0), V(7.205172, 127.826561, 0)), False)
sketch4.addGeometry(Part.ArcOfCircle(Part.Circle(V(5.000001, 132.314014, 0), V(0, 0, 1), 5.000001), math.radians(-179.999994), math.radians(-63.830119)), False)
sketch4.addGeometry(Part.LineSegment(V(0, 132.314013, 0), V(0, 154.581261, 0)), False)
sketch4.addGeometry(Part.ArcOfCircle(Part.Circle(V(5, 154.581261, 0), V(0, 0, 1), 5), math.radians(21.129892), math.radians(180.000006)), False)
sketch4.addGeometry(Part.LineSegment(V(9.663828, 156.383679, 0), V(15.657094, 140.875861, 0)), False)
sketch4.addGeometry(Part.Circle(V(25, 131, 0), V(0, 0, 1), 3), False)
sketch4.addConstraint(Sketcher.Constraint("Coincident", 0, 2, 1, 1))
sketch4.addConstraint(Sketcher.Constraint("Coincident", 1, 2, 2, 1))
sketch4.addConstraint(Sketcher.Constraint("Coincident", 2, 2, 3, 1))
sketch4.addConstraint(Sketcher.Constraint("Coincident", 3, 2, 4, 1))
sketch4.addConstraint(Sketcher.Constraint("Coincident", 4, 2, 5, 1))
sketch4.addConstraint(Sketcher.Constraint("Coincident", 5, 2, 6, 2))
sketch4.addConstraint(Sketcher.Constraint("Coincident", 6, 1, 7, 1))
sketch4.addConstraint(Sketcher.Constraint("Coincident", 7, 2, 8, 1))
sketch4.addConstraint(Sketcher.Constraint("Coincident", 8, 2, 9, 1))
sketch4.addConstraint(Sketcher.Constraint("Coincident", 9, 2, 0, 1))
sketch4.addConstraint(Sketcher.Constraint("Coincident", 10, 2, 11, 2))
sketch4.addConstraint(Sketcher.Constraint("Coincident", 11, 1, 12, 1))
sketch4.addConstraint(Sketcher.Constraint("Coincident", 12, 2, 13, 2))
sketch4.addConstraint(Sketcher.Constraint("Coincident", 13, 1, 14, 1))
sketch4.addConstraint(Sketcher.Constraint("Coincident", 14, 2, 15, 2))
sketch4.addConstraint(Sketcher.Constraint("Coincident", 15, 1, 16, 1))
sketch4.addConstraint(Sketcher.Constraint("Coincident", 16, 2, 17, 2))
sketch4.addConstraint(Sketcher.Constraint("Coincident", 17, 1, 10, 1))
sketch4.addConstraint(Sketcher.Constraint("Coincident", 18, 1, 19, 1))
sketch4.addConstraint(Sketcher.Constraint("Coincident", 19, 2, 20, 2))
sketch4.addConstraint(Sketcher.Constraint("Coincident", 20, 1, 21, 1))
sketch4.addConstraint(Sketcher.Constraint("Coincident", 21, 2, 22, 2))
sketch4.addConstraint(Sketcher.Constraint("Coincident", 22, 1, 23, 1))
sketch4.addConstraint(Sketcher.Constraint("Coincident", 23, 2, 18, 2))
sketch4.addConstraint(Sketcher.Constraint("Vertical", 0))
sketch4.addConstraint(Sketcher.Constraint("Horizontal", 1))
sketch4.addConstraint(Sketcher.Constraint("Vertical", 2))
sketch4.addConstraint(Sketcher.Constraint("Horizontal", 9))
sketch4.addConstraint(Sketcher.Constraint("Vertical", 10))
sketch4.addConstraint(Sketcher.Constraint("Horizontal", 16))
sketch4.addConstraint(Sketcher.Constraint("Vertical", 21))
sketch4.addConstraint(Sketcher.Constraint("PointOnObject", 10, 2, -2))
sketch4.addConstraint(Sketcher.Constraint("PointOnObject", 20, 1, -2))
sketch4.addConstraint(Sketcher.Constraint("Diameter", 24, Q("6 mm")))
sketch4.addConstraint(Sketcher.Constraint("Radius", 8, Q("10 mm")))
sketch4.addConstraint(Sketcher.Constraint("Radius", 11, Q("5 mm")))
sketch4.addConstraint(Sketcher.Constraint("Radius", 15, Q("5 mm")))
sketch4.addConstraint(Sketcher.Constraint("Radius", 17, Q("5 mm")))
sketch4.addConstraint(Sketcher.Constraint("Radius", 20, Q("5.000001 mm")))
sketch4.addConstraint(Sketcher.Constraint("Radius", 22, Q("5 mm")))
sketch4.addConstraint(Sketcher.Constraint("DistanceX", 1, 1, 1, 2, Q("135 mm")))
sketch4.addConstraint(Sketcher.Constraint("DistanceY", 0, 2, 0, 1, Q("220 mm")))
sketch4.addConstraint(Sketcher.Constraint("DistanceY", -1, 1, 8, 3, Q("213 mm")))
sketch4.addConstraint(Sketcher.Constraint("DistanceY", -1, 1, 15, 3, Q("23 mm")))
sketch4.addConstraint(Sketcher.Constraint("DistanceX", -1, 1, 24, 3, Q("25 mm")))
sketch4.addConstraint(Sketcher.Constraint("DistanceY", -1, 1, 24, 3, Q("131 mm")))
sketch4.addConstraint(Sketcher.Constraint("DistanceX", 0, 2, -1, 1, Q("15 mm")))
sketch4.addConstraint(Sketcher.Constraint("DistanceY", -1, 1, 3, 2, Q("18 mm")))
sketch4.addConstraint(Sketcher.Constraint("DistanceX", -1, 1, 16, 2, Q("5 mm")))
sketch4.addConstraint(Sketcher.Constraint("DistanceY", -1, 1, 17, 1, Q("23 mm")))
sketch4.addConstraint(Sketcher.Constraint("Radius", 4, Q("9.999949 mm")))
sketch4.addConstraint(Sketcher.Constraint("Radius", 18, Q("8.752991 mm")))
sketch4.addConstraint(Sketcher.Constraint("Radius", 3, Q("9.999993 mm")))
sketch4.addConstraint(Sketcher.Constraint("Radius", 6, Q("30.000014 mm")))
sketch4.addConstraint(Sketcher.Constraint("Radius", 13, Q("10.107065 mm")))
sketch4.addConstraint(Sketcher.Constraint("DistanceX", 16, 2, 16, 1, Q("86.457421 mm")))
sketch4.addConstraint(Sketcher.Constraint("DistanceY", 2, 1, 2, 2, Q("11.71041 mm")))
sketch4.addConstraint(Sketcher.Constraint("DistanceY", 21, 1, 21, 2, Q("22.267248 mm")))
sketch4.addConstraint(Sketcher.Constraint("DistanceY", -1, 1, 13, 3, Q("111.589401 mm")))
sketch4.addConstraint(Sketcher.Constraint("DistanceY", -1, 1, 11, 1, Q("114.517099 mm")))
sketch4.addConstraint(Sketcher.Constraint("DistanceX", 6, 3, 15, 3, Q("30.557799 mm")))
sketch4.addConstraint(Sketcher.Constraint("DistanceX", 6, 1, 5, 2, Q("3.841802 mm")))
sketch4.addConstraint(Sketcher.Constraint("DistanceX", 11, 1, 12, 2, Q("12.5014 mm")))
sketch4.addConstraint(Sketcher.Constraint("DistanceY", 13, 3, 13, 1, Q("6.000302 mm")))
sketch4.addConstraint(Sketcher.Constraint("DistanceX", 14, 2, 4, 3, Q("14.519099 mm")))
sketch4.addConstraint(Sketcher.Constraint("DistanceY", 19, 2, 23, 2, Q("13.0493 mm")))
sketch4.addConstraint(Sketcher.Constraint("Distance", 5, Q("136.924619 mm")))
sketch4.addConstraint(Sketcher.Constraint("Distance", 7, Q("84.456341 mm")))
sketch4.addConstraint(Sketcher.Constraint("Distance", 14, Q("113.856971 mm")))
sketch4.addConstraint(Sketcher.Constraint("DistanceX", 9, 2, 9, 1, Q("8.143867 mm")))
sketch4.addConstraint(Sketcher.Constraint("DistanceY", 10, 1, 10, 2, Q("87.029648 mm")))
sketch4.addConstraint(Sketcher.Constraint("DistanceY", -1, 1, 3, 3, Q("14.710411 mm")))
sketch4.addConstraint(Sketcher.Constraint("DistanceX", -1, 1, 6, 3, Q("60.899622 mm")))
sketch4.addConstraint(Sketcher.Constraint("DistanceY", -1, 1, 6, 3, Q("148.641379 mm")))
sketch4.addConstraint(Sketcher.Constraint("DistanceX", -1, 1, 13, 3, Q("19.753792 mm")))
sketch4.addConstraint(Sketcher.Constraint("DistanceY", -1, 1, 18, 3, Q("137.720551 mm")))
sketch4.addConstraint(Sketcher.Constraint("DistanceY", -1, 1, 22, 3, Q("154.581261 mm")))
sketch4.addConstraint(Sketcher.Constraint("DistanceY", -1, 1, 4, 2, Q("20.647151 mm")))
sketch4.addConstraint(Sketcher.Constraint("DistanceY", -1, 1, 19, 2, Q("127.826561 mm")))
sketch4.addConstraint(Sketcher.Constraint("DistanceY", -1, 1, 21, 2, Q("154.581261 mm")))
sketch4.addConstraint(Sketcher.Constraint("DistanceY", -1, 1, 22, 1, Q("156.383679 mm")))
sketch4.addConstraint(Sketcher.Constraint("DistanceX", 8, 3, 3, 3, Q("116.856141 mm")))
sketch4.addConstraint(Sketcher.Constraint("DistanceY", 11, 3, 6, 3, Q("38.611731 mm")))
sketch4.addConstraint(Sketcher.Constraint("DistanceX", 8, 3, 18, 3, Q("14.348739 mm")))
sketch4.addConstraint(Sketcher.Constraint("DistanceY", 20, 3, 7, 2, Q("84.290821 mm")))
sketch4.addConstraint(Sketcher.Constraint("DistanceX", 18, 3, 18, 1, Q("3.860369 mm")))
pad4 = body4.newObject("PartDesign::Pad", "Pad003")
pad4.Profile = sketch4
pad4.Length = 3

doc.recompute()
